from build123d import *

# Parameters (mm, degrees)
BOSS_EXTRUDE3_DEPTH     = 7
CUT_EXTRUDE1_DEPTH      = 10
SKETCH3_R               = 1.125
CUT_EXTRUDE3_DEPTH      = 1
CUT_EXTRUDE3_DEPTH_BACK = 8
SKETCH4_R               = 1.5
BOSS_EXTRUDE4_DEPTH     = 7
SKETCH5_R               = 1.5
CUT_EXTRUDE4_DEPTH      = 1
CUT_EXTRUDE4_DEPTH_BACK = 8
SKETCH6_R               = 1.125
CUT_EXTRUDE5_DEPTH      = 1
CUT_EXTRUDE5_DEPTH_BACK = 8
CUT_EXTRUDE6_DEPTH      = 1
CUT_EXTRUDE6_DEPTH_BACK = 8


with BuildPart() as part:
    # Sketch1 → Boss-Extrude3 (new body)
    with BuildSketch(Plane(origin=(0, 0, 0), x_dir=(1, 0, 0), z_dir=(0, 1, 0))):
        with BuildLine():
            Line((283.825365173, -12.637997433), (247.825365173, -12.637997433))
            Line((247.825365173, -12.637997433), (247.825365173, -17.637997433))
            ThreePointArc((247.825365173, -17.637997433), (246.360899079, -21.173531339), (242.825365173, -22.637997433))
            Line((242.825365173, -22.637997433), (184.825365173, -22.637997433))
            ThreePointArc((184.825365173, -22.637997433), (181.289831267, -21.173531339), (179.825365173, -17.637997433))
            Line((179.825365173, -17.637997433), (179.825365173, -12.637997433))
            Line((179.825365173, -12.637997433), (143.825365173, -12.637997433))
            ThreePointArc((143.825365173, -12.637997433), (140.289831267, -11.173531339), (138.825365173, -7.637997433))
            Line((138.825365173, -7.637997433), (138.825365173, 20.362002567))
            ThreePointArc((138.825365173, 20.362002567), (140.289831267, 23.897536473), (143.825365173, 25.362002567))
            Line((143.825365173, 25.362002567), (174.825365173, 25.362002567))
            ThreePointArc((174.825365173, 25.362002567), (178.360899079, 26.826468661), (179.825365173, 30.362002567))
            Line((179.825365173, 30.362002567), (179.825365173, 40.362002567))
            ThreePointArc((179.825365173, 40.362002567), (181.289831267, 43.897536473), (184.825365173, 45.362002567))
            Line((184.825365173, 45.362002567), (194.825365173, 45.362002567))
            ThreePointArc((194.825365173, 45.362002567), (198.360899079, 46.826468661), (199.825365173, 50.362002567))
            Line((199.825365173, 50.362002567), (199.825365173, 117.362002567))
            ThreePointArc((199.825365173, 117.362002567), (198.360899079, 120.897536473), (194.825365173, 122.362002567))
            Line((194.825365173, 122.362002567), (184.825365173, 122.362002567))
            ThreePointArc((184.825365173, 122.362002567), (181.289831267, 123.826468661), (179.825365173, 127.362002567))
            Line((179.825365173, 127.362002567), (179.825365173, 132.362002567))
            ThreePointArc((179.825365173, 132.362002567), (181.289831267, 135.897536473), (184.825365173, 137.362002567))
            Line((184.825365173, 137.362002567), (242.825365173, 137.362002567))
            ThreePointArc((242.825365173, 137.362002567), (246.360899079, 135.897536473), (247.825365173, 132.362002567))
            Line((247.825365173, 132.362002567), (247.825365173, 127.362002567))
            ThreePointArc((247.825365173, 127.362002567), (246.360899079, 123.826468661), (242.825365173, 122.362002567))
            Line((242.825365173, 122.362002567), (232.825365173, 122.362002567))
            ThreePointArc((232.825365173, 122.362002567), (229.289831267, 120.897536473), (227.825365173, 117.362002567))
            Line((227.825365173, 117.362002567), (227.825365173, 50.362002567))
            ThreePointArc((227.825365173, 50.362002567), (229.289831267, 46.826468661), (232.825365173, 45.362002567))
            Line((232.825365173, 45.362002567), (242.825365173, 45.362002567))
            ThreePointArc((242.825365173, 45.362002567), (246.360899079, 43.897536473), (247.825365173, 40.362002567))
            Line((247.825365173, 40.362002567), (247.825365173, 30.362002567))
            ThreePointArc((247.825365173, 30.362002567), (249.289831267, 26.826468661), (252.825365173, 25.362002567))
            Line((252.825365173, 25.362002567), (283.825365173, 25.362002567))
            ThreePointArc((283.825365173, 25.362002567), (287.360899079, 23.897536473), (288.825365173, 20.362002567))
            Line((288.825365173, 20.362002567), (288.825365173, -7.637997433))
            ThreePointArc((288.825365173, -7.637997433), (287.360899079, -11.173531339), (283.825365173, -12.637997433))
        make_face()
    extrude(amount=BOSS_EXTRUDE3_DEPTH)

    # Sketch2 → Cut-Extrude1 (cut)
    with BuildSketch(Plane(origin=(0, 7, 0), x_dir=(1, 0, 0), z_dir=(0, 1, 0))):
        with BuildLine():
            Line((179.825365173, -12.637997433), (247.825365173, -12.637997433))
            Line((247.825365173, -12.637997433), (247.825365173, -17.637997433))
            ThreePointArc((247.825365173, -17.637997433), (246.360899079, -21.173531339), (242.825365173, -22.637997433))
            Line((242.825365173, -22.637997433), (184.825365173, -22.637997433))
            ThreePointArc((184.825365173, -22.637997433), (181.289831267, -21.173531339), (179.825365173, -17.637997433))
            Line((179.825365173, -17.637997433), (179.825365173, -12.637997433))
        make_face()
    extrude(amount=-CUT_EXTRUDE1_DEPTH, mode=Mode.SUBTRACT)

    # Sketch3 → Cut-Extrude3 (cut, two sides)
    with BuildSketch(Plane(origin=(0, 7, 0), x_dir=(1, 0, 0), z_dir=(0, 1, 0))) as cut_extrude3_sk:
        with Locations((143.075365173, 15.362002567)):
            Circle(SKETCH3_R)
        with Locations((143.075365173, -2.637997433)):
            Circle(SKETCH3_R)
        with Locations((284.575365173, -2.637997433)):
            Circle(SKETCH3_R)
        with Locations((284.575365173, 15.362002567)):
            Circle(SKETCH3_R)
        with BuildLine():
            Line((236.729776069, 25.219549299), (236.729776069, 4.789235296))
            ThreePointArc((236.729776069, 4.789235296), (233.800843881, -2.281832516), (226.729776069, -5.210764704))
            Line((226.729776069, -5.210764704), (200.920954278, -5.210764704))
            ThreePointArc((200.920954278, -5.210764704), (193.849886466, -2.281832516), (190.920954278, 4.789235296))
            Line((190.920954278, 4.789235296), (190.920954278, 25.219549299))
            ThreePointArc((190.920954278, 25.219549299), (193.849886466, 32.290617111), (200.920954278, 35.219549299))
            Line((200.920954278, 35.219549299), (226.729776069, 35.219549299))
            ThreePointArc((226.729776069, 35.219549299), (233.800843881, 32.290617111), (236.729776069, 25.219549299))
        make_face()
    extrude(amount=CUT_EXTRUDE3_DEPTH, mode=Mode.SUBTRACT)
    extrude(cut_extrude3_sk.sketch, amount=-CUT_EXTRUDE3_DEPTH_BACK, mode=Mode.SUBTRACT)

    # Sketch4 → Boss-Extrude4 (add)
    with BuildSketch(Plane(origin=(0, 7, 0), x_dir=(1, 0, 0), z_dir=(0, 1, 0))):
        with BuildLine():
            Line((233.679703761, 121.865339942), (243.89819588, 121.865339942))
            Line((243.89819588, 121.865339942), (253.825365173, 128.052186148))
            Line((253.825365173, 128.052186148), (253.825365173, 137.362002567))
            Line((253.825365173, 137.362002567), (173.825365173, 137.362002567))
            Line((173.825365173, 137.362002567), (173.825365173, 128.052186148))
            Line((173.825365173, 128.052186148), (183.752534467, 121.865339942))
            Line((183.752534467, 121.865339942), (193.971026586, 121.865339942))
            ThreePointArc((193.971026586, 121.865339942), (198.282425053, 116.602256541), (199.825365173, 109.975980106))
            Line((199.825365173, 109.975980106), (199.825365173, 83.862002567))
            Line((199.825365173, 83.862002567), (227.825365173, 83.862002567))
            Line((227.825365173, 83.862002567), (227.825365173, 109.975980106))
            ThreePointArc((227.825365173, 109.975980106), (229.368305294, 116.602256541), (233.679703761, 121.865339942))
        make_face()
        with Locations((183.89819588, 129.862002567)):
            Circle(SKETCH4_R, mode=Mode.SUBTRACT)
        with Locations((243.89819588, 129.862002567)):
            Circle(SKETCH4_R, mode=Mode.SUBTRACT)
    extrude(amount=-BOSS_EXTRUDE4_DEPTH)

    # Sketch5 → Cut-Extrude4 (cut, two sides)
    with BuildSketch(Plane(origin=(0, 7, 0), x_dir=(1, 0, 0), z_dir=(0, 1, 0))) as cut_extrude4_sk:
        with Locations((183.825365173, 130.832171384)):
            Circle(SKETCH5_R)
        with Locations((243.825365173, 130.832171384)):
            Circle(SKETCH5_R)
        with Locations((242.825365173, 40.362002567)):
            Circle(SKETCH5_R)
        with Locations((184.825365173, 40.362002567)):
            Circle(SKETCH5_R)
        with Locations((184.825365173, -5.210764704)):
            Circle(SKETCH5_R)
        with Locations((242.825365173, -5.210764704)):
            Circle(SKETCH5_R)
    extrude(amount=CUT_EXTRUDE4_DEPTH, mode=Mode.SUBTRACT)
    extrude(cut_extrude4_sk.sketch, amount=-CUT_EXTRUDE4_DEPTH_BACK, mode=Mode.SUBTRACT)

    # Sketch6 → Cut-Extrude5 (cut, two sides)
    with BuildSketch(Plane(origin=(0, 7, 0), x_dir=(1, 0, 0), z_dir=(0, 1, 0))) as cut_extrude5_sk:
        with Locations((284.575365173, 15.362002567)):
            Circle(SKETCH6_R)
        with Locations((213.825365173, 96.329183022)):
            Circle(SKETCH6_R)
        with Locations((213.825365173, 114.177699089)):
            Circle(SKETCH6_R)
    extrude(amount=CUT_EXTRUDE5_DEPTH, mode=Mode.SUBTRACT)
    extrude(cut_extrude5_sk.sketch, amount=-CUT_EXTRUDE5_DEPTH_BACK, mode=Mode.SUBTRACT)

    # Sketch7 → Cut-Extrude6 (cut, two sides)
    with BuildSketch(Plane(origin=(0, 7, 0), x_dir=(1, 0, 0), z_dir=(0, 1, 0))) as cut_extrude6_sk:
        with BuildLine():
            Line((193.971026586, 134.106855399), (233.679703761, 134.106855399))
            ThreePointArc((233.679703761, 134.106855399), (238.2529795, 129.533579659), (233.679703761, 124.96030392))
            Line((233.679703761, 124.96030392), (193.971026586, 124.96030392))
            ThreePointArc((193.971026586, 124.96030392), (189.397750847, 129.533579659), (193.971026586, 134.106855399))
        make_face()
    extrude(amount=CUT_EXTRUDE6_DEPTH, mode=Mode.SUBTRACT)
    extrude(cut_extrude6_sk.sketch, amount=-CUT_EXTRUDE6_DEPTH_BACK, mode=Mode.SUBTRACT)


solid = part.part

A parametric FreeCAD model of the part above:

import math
import FreeCAD as App
import Part
import Sketcher
Q = App.Units.Quantity

doc = App.newDocument("Part")
body = doc.addObject("PartDesign::Body", "Body")

# Sketch on XZ plane
sketch1 = body.newObject("Sketcher::SketchObject", "Sketch")
sketch1.AttachmentSupport = (doc.getObject("XZ_Plane"), [""])
sketch1.MapMode = "FlatFace"
sketch1.addGeometry(Part.LineSegment(App.Vector(247.825365, 12.637997, 0), App.Vector(283.825365, 12.637997, 0)), False)
sketch1.addGeometry(Part.ArcOfCircle(Part.Circle(App.Vector(283.825365, 7.637997, 0), App.Vector(0, 0, 1), 5), math.radians(0), math.radians(90)), False)
sketch1.addGeometry(Part.LineSegment(App.Vector(288.825365, 7.637997, 0), App.Vector(288.825365, -20.362003, 0)), False)
sketch1.addGeometry(Part.ArcOfCircle(Part.Circle(App.Vector(283.825365, -20.362003, 0), App.Vector(0, 0, 1), 5), math.radians(-90), math.radians(0)), False)
sketch1.addGeometry(Part.LineSegment(App.Vector(283.825365, -25.362003, 0), App.Vector(252.825365, -25.362003, 0)), False)
sketch1.addGeometry(Part.ArcOfCircle(Part.Circle(App.Vector(252.825365, -30.362003, 0), App.Vector(0, 0, 1), 5), math.radians(90), math.radians(180)), False)
sketch1.addGeometry(Part.LineSegment(App.Vector(247.825365, -30.362003, 0), App.Vector(247.825365, -40.362003, 0)), False)
sketch1.addGeometry(Part.ArcOfCircle(Part.Circle(App.Vector(242.825365, -40.362003, 0), App.Vector(0, 0, 1), 5), math.radians(-90), math.radians(0)), False)
sketch1.addGeometry(Part.LineSegment(App.Vector(242.825365, -45.362003, 0), App.Vector(232.825365, -45.362003, 0)), False)
sketch1.addGeometry(Part.ArcOfCircle(Part.Circle(App.Vector(232.825365, -50.362003, 0), App.Vector(0, 0, 1), 5), math.radians(90), math.radians(180)), False)
sketch1.addGeometry(Part.LineSegment(App.Vector(227.825365, -50.362003, 0), App.Vector(227.825365, -117.362003, 0)), False)
sketch1.addGeometry(Part.ArcOfCircle(Part.Circle(App.Vector(232.825365, -117.362003, 0), App.Vector(0, 0, 1), 5), math.radians(180), math.radians(270)), False)
sketch1.addGeometry(Part.LineSegment(App.Vector(232.825365, -122.362003, 0), App.Vector(242.825365, -122.362003, 0)), False)
sketch1.addGeometry(Part.ArcOfCircle(Part.Circle(App.Vector(242.825365, -127.362003, 0), App.Vector(0, 0, 1), 5), math.radians(0), math.radians(90)), False)
sketch1.addGeometry(Part.LineSegment(App.Vector(247.825365, -127.362003, 0), App.Vector(247.825365, -132.362003, 0)), False)
sketch1.addGeometry(Part.ArcOfCircle(Part.Circle(App.Vector(242.825365, -132.362003, 0), App.Vector(0, 0, 1), 5), math.radians(-90), math.radians(0)), False)
sketch1.addGeometry(Part.LineSegment(App.Vector(242.825365, -137.362003, 0), App.Vector(184.825365, -137.362003, 0)), False)
sketch1.addGeometry(Part.ArcOfCircle(Part.Circle(App.Vector(184.825365, -132.362003, 0), App.Vector(0, 0, 1), 5), math.radians(180), math.radians(270)), False)
sketch1.addGeometry(Part.LineSegment(App.Vector(179.825365, -132.362003, 0), App.Vector(179.825365, -127.362003, 0)), False)
sketch1.addGeometry(Part.ArcOfCircle(Part.Circle(App.Vector(184.825365, -127.362003, 0), App.Vector(0, 0, 1), 5), math.radians(90), math.radians(180)), False)
sketch1.addGeometry(Part.LineSegment(App.Vector(184.825365, -122.362003, 0), App.Vector(194.825365, -122.362003, 0)), False)
sketch1.addGeometry(Part.ArcOfCircle(Part.Circle(App.Vector(194.825365, -117.362003, 0), App.Vector(0, 0, 1), 5), math.radians(-90), math.radians(0)), False)
sketch1.addGeometry(Part.LineSegment(App.Vector(199.825365, -117.362003, 0), App.Vector(199.825365, -50.362003, 0)), False)
sketch1.addGeometry(Part.ArcOfCircle(Part.Circle(App.Vector(194.825365, -50.362003, 0), App.Vector(0, 0, 1), 5), math.radians(0), math.radians(90)), False)
sketch1.addGeometry(Part.LineSegment(App.Vector(194.825365, -45.362003, 0), App.Vector(184.825365, -45.362003, 0)), False)
sketch1.addGeometry(Part.ArcOfCircle(Part.Circle(App.Vector(184.825365, -40.362003, 0), App.Vector(0, 0, 1), 5), math.radians(180), math.radians(270)), False)
sketch1.addGeometry(Part.LineSegment(App.Vector(179.825365, -40.362003, 0), App.Vector(179.825365, -30.362003, 0)), False)
sketch1.addGeometry(Part.ArcOfCircle(Part.Circle(App.Vector(174.825365, -30.362003, 0), App.Vector(0, 0, 1), 5), math.radians(0), math.radians(90)), False)
sketch1.addGeometry(Part.LineSegment(App.Vector(174.825365, -25.362003, 0), App.Vector(143.825365, -25.362003, 0)), False)
sketch1.addGeometry(Part.ArcOfCircle(Part.Circle(App.Vector(143.825365, -20.362003, 0), App.Vector(0, 0, 1), 5), math.radians(180), math.radians(270)), False)
sketch1.addGeometry(Part.LineSegment(App.Vector(138.825365, -20.362003, 0), App.Vector(138.825365, 7.637997, 0)), False)
sketch1.addGeometry(Part.ArcOfCircle(Part.Circle(App.Vector(143.825365, 7.637997, 0), App.Vector(0, 0, 1), 5), math.radians(90), math.radians(180)), False)
sketch1.addGeometry(Part.LineSegment(App.Vector(143.825365, 12.637997, 0), App.Vector(179.825365, 12.637997, 0)), False)
sketch1.addGeometry(Part.LineSegment(App.Vector(179.825365, 12.637997, 0), App.Vector(179.825365, 17.637997, 0)), False)
sketch1.addGeometry(Part.ArcOfCircle(Part.Circle(App.Vector(184.825365, 17.637997, 0), App.Vector(0, 0, 1), 5), math.radians(90), math.radians(180)), False)
sketch1.addGeometry(Part.LineSegment(App.Vector(184.825365, 22.637997, 0), App.Vector(242.825365, 22.637997, 0)), False)
sketch1.addGeometry(Part.ArcOfCircle(Part.Circle(App.Vector(242.825365, 17.637997, 0), App.Vector(0, 0, 1), 5), math.radians(0), math.radians(90)), False)
sketch1.addGeometry(Part.LineSegment(App.Vector(247.825365, 17.637997, 0), App.Vector(247.825365, 12.637997, 0)), False)
sketch1.addConstraint(Sketcher.Constraint("Tangent", 0, 2, 1, 2))
sketch1.addConstraint(Sketcher.Constraint("Tangent", 1, 1, 2, 1))
sketch1.addConstraint(Sketcher.Constraint("Tangent", 2, 2, 3, 2))
sketch1.addConstraint(Sketcher.Constraint("Tangent", 3, 1, 4, 1))
sketch1.addConstraint(Sketcher.Constraint("Tangent", 4, 2, 5, 1))
sketch1.addConstraint(Sketcher.Constraint("Tangent", 5, 2, 6, 1))
sketch1.addConstraint(Sketcher.Constraint("Tangent", 6, 2, 7, 2))
sketch1.addConstraint(Sketcher.Constraint("Tangent", 7, 1, 8, 1))
sketch1.addConstraint(Sketcher.Constraint("Tangent", 8, 2, 9, 1))
sketch1.addConstraint(Sketcher.Constraint("Tangent", 9, 2, 10, 1))
sketch1.addConstraint(Sketcher.Constraint("Tangent", 10, 2, 11, 1))
sketch1.addConstraint(Sketcher.Constraint("Tangent", 11, 2, 12, 1))
sketch1.addConstraint(Sketcher.Constraint("Tangent", 12, 2, 13, 2))
sketch1.addConstraint(Sketcher.Constraint("Tangent", 13, 1, 14, 1))
sketch1.addConstraint(Sketcher.Constraint("Tangent", 14, 2, 15, 2))
sketch1.addConstraint(Sketcher.Constraint("Tangent", 15, 1, 16, 1))
sketch1.addConstraint(Sketcher.Constraint("Tangent", 16, 2, 17, 2))
sketch1.addConstraint(Sketcher.Constraint("Tangent", 17, 1, 18, 1))
sketch1.addConstraint(Sketcher.Constraint("Tangent", 18, 2, 19, 2))
sketch1.addConstraint(Sketcher.Constraint("Tangent", 19, 1, 20, 1))
sketch1.addConstraint(Sketcher.Constraint("Tangent", 20, 2, 21, 1))
sketch1.addConstraint(Sketcher.Constraint("Tangent", 21, 2, 22, 1))
sketch1.addConstraint(Sketcher.Constraint("Tangent", 22, 2, 23, 1))
sketch1.addConstraint(Sketcher.Constraint("Tangent", 23, 2, 24, 1))
sketch1.addConstraint(Sketcher.Constraint("Tangent", 24, 2, 25, 2))
sketch1.addConstraint(Sketcher.Constraint("Tangent", 25, 1, 26, 1))
sketch1.addConstraint(Sketcher.Constraint("Tangent", 26, 2, 27, 1))
sketch1.addConstraint(Sketcher.Constraint("Tangent", 27, 2, 28, 1))
sketch1.addConstraint(Sketcher.Constraint("Tangent", 28, 2, 29, 2))
sketch1.addConstraint(Sketcher.Constraint("Tangent", 29, 1, 30, 1))
sketch1.addConstraint(Sketcher.Constraint("Tangent", 30, 2, 31, 2))
sketch1.addConstraint(Sketcher.Constraint("Tangent", 31, 1, 32, 1))
sketch1.addConstraint(Sketcher.Constraint("Coincident", 32, 2, 33, 1))
sketch1.addConstraint(Sketcher.Constraint("Tangent", 33, 2, 34, 2))
sketch1.addConstraint(Sketcher.Constraint("Tangent", 34, 1, 35, 1))
sketch1.addConstraint(Sketcher.Constraint("Tangent", 35, 2, 36, 2))
sketch1.addConstraint(Sketcher.Constraint("Tangent", 36, 1, 37, 1))
sketch1.addConstraint(Sketcher.Constraint("Coincident", 37, 2, 0, 1))
sketch1.addConstraint(Sketcher.Constraint("Horizontal", 0))
sketch1.addConstraint(Sketcher.Constraint("Vertical", 2))
sketch1.addConstraint(Sketcher.Constraint("Horizontal", 4))
sketch1.addConstraint(Sketcher.Constraint("Vertical", 6))
sketch1.addConstraint(Sketcher.Constraint("Horizontal", 8))
sketch1.addConstraint(Sketcher.Constraint("Vertical", 10))
sketch1.addConstraint(Sketcher.Constraint("Horizontal", 12))
sketch1.addConstraint(Sketcher.Constraint("Vertical", 14))
sketch1.addConstraint(Sketcher.Constraint("Horizontal", 16))
sketch1.addConstraint(Sketcher.Constraint("Vertical", 18))
sketch1.addConstraint(Sketcher.Constraint("Horizontal", 20))
sketch1.addConstraint(Sketcher.Constraint("Vertical", 22))
sketch1.addConstraint(Sketcher.Constraint("Horizontal", 24))
sketch1.addConstraint(Sketcher.Constraint("Vertical", 26))
sketch1.addConstraint(Sketcher.Constraint("Horizontal", 28))
sketch1.addConstraint(Sketcher.Constraint("Vertical", 30))
sketch1.addConstraint(Sketcher.Constraint("Horizontal", 32))
sketch1.addConstraint(Sketcher.Constraint("Vertical", 33))
sketch1.addConstraint(Sketcher.Constraint("Horizontal", 35))
sketch1.addConstraint(Sketcher.Constraint("Vertical", 37))
sketch1.addConstraint(Sketcher.Constraint("Equal", 1, 3))
sketch1.addConstraint(Sketcher.Constraint("Equal", 3, 5))
sketch1.addConstraint(Sketcher.Constraint("Equal", 5, 7))
sketch1.addConstraint(Sketcher.Constraint("Equal", 7, 9))
sketch1.addConstraint(Sketcher.Constraint("Equal", 9, 11))
sketch1.addConstraint(Sketcher.Constraint("Equal", 11, 13))
sketch1.addConstraint(Sketcher.Constraint("Equal", 13, 15))
sketch1.addConstraint(Sketcher.Constraint("Equal", 15, 17))
sketch1.addConstraint(Sketcher.Constraint("Equal", 17, 19))
sketch1.addConstraint(Sketcher.Constraint("Equal", 19, 21))
sketch1.addConstraint(Sketcher.Constraint("Equal", 21, 23))
sketch1.addConstraint(Sketcher.Constraint("Equal", 23, 25))
sketch1.addConstraint(Sketcher.Constraint("Equal", 25, 27))
sketch1.addConstraint(Sketcher.Constraint("Equal", 27, 29))
sketch1.addConstraint(Sketcher.Constraint("Equal", 29, 31))
sketch1.addConstraint(Sketcher.Constraint("Equal", 31, 34))
sketch1.addConstraint(Sketcher.Constraint("Equal", 34, 36))
sketch1.addConstraint(Sketcher.Constraint("Horizontal", 13, 3, 19, 3))
sketch1.addConstraint(Sketcher.Constraint("Horizontal", 9, 3, 23, 3))
sketch1.addConstraint(Sketcher.Constraint("Horizontal", 5, 3, 27, 3))
sketch1.addConstraint(Sketcher.Constraint("Horizontal", 1, 3, 31, 3))
sketch1.addConstraint(Sketcher.Constraint("Vertical", 7, 3, 13, 3))
sketch1.addConstraint(Sketcher.Constraint("Vertical", 19, 3, 25, 3))
sketch1.addConstraint(Sketcher.Constraint("Vertical", 25, 3, 34, 3))
sketch1.addConstraint(Sketcher.Constraint("Vertical", 15, 3, 36, 3))
sketch1.addConstraint(Sketcher.Constraint("Equal", 12, 20))
sketch1.addConstraint(Sketcher.Constraint("Equal", 4, 28))
sketch1.addConstraint(Sketcher.Constraint("Equal", 24, 6))
sketch1.addConstraint(Sketcher.Constraint("Equal", 18, 33))
sketch1.addConstraint(Sketcher.Constraint("Radius", 1, Q("5 mm")))
sketch1.addConstraint(Sketcher.Constraint("DistanceX", 0, 1, 0, 2, Q("36 mm")))
sketch1.addConstraint(Sketcher.Constraint("DistanceX", 8, 2, 8, 1, Q("10 mm")))
sketch1.addConstraint(Sketcher.Constraint("DistanceX", 16, 2, 16, 1, Q("58 mm")))
sketch1.addConstraint(Sketcher.Constraint("DistanceY", 2, 2, 2, 1, Q("28 mm")))
sketch1.addConstraint(Sketcher.Constraint("DistanceY", 10, 2, 10, 1, Q("67 mm")))
sketch1.addConstraint(Sketcher.Constraint("DistanceY", 14, 2, 14, 1, Q("5 mm")))
sketch1.addConstraint(Sketcher.Constraint("DistanceX", -1, 1, 1, 3, Q("283.825365 mm")))
sketch1.addConstraint(Sketcher.Constraint("DistanceY", -1, 1, 1, 3, Q("7.637997 mm")))
pad1 = body.newObject("PartDesign::Pad", "Pad")
pad1.Profile = sketch1
pad1.Length = 7
pad1.Reversed = True

# Sketch on XZ plane
sketch2 = body.newObject("Sketcher::SketchObject", "Sketch001")
sketch2.AttachmentSupport = (doc.getObject("XZ_Plane"), [""])
sketch2.MapMode = "FlatFace"
sketch2.AttachmentOffset = App.Placement(App.Vector(0, 0, -7), App.Rotation())
sketch2.addGeometry(Part.LineSegment(App.Vector(247.825365, 12.637997, 0), App.Vector(179.825365, 12.637997, 0)), False)
sketch2.addGeometry(Part.LineSegment(App.Vector(179.825365, 12.637997, 0), App.Vector(179.825365, 17.637997, 0)), False)
sketch2.addGeometry(Part.ArcOfCircle(Part.Circle(App.Vector(184.825365, 17.637997, 0), App.Vector(0, 0, 1), 5), math.radians(90), math.radians(180)), False)
sketch2.addGeometry(Part.LineSegment(App.Vector(184.825365, 22.637997, 0), App.Vector(242.825365, 22.637997, 0)), False)
sketch2.addGeometry(Part.ArcOfCircle(Part.Circle(App.Vector(242.825365, 17.637997, 0), App.Vector(0, 0, 1), 5), math.radians(0), math.radians(90)), False)
sketch2.addGeometry(Part.LineSegment(App.Vector(247.825365, 17.637997, 0), App.Vector(247.825365, 12.637997, 0)), False)
sketch2.addConstraint(Sketcher.Constraint("Coincident", 0, 2, 1, 1))
sketch2.addConstraint(Sketcher.Constraint("Tangent", 1, 2, 2, 2))
sketch2.addConstraint(Sketcher.Constraint("Tangent", 2, 1, 3, 1))
sketch2.addConstraint(Sketcher.Constraint("Tangent", 3, 2, 4, 2))
sketch2.addConstraint(Sketcher.Constraint("Tangent", 4, 1, 5, 1))
sketch2.addConstraint(Sketcher.Constraint("Coincident", 5, 2, 0, 1))
sketch2.addConstraint(Sketcher.Constraint("Horizontal", 0))
sketch2.addConstraint(Sketcher.Constraint("Vertical", 1))
sketch2.addConstraint(Sketcher.Constraint("Horizontal", 3))
sketch2.addConstraint(Sketcher.Constraint("Vertical", 5))
sketch2.addConstraint(Sketcher.Constraint("Equal", 2, 4))
sketch2.addConstraint(Sketcher.Constraint("Radius", 2, Q("5 mm")))
sketch2.addConstraint(Sketcher.Constraint("DistanceX", 0, 2, 0, 1, Q("68 mm")))
sketch2.addConstraint(Sketcher.Constraint("DistanceY", 1, 1, 1, 2, Q("5 mm")))
sketch2.addConstraint(Sketcher.Constraint("DistanceX", -1, 1, 2, 3, Q("184.825365 mm")))
sketch2.addConstraint(Sketcher.Constraint("DistanceY", -1, 1, 2, 3, Q("17.637997 mm")))
pocket1 = body.newObject("PartDesign::Pocket", "Pocket")
pocket1.Profile = sketch2
pocket1.Length = 10
pocket1.Reversed = True

# Sketch on XZ plane
sketch3 = body.newObject("Sketcher::SketchObject", "Sketch002")
sketch3.AttachmentSupport = (doc.getObject("XZ_Plane"), [""])
sketch3.MapMode = "FlatFace"
sketch3.AttachmentOffset = App.Placement(App.Vector(0, 0, -7), App.Rotation())
sketch3.addGeometry(Part.Circle(App.Vector(143.075365, -15.362003, 0), App.Vector(0, 0, 1), 1.125), False)
sketch3.addGeometry(Part.Circle(App.Vector(143.075365, 2.637997, 0), App.Vector(0, 0, 1), 1.125), False)
sketch3.addGeometry(Part.Circle(App.Vector(284.575365, 2.637997, 0), App.Vector(0, 0, 1), 1.125), False)
sketch3.addGeometry(Part.Circle(App.Vector(284.575365, -15.362003, 0), App.Vector(0, 0, 1), 1.125), False)
sketch3.addGeometry(Part.LineSegment(App.Vector(236.729776, -4.789235, 0), App.Vector(236.729776, -25.219549, 0)), False)
sketch3.addGeometry(Part.ArcOfCircle(Part.Circle(App.Vector(226.729776, -25.219549, 0), App.Vector(0, 0, 1), 10), math.radians(-90), math.radians(0)), False)
sketch3.addGeometry(Part.LineSegment(App.Vector(226.729776, -35.219549, 0), App.Vector(200.920954, -35.219549, 0)), False)
sketch3.addGeometry(Part.ArcOfCircle(Part.Circle(App.Vector(200.920954, -25.219549, 0), App.Vector(0, 0, 1), 10), math.radians(180), math.radians(270)), False)
sketch3.addGeometry(Part.LineSegment(App.Vector(190.920954, -25.219549, 0), App.Vector(190.920954, -4.789235, 0)), False)
sketch3.addGeometry(Part.ArcOfCircle(Part.Circle(App.Vector(200.920954, -4.789235, 0), App.Vector(0, 0, 1), 10), math.radians(90), math.radians(180)), False)
sketch3.addGeometry(Part.LineSegment(App.Vector(200.920954, 5.210765, 0), App.Vector(226.729776, 5.210765, 0)), False)
sketch3.addGeometry(Part.ArcOfCircle(Part.Circle(App.Vector(226.729776, -4.789235, 0), App.Vector(0, 0, 1), 10), math.radians(0), math.radians(90)), False)
sketch3.addConstraint(Sketcher.Constraint("Tangent", 4, 2, 5, 2))
sketch3.addConstraint(Sketcher.Constraint("Tangent", 5, 1, 6, 1))
sketch3.addConstraint(Sketcher.Constraint("Tangent", 6, 2, 7, 2))
sketch3.addConstraint(Sketcher.Constraint("Tangent", 7, 1, 8, 1))
sketch3.addConstraint(Sketcher.Constraint("Tangent", 8, 2, 9, 2))
sketch3.addConstraint(Sketcher.Constraint("Tangent", 9, 1, 10, 1))
sketch3.addConstraint(Sketcher.Constraint("Tangent", 10, 2, 11, 2))
sketch3.addConstraint(Sketcher.Constraint("Tangent", 11, 1, 4, 1))
sketch3.addConstraint(Sketcher.Constraint("Vertical", 4))
sketch3.addConstraint(Sketcher.Constraint("Horizontal", 6))
sketch3.addConstraint(Sketcher.Constraint("Vertical", 8))
sketch3.addConstraint(Sketcher.Constraint("Horizontal", 10))
sketch3.addConstraint(Sketcher.Constraint("Equal", 0, 1))
sketch3.addConstraint(Sketcher.Constraint("Equal", 1, 2))
sketch3.addConstraint(Sketcher.Constraint("Equal", 2, 3))
sketch3.addConstraint(Sketcher.Constraint("Equal", 5, 7))
sketch3.addConstraint(Sketcher.Constraint("Equal", 7, 9))
sketch3.addConstraint(Sketcher.Constraint("Equal", 9, 11))
sketch3.addConstraint(Sketcher.Constraint("Horizontal", 1, 3, 2, 3))
sketch3.addConstraint(Sketcher.Constraint("Horizontal", 0, 3, 3, 3))
sketch3.addConstraint(Sketcher.Constraint("Vertical", 0, 3, 1, 3))
sketch3.addConstraint(Sketcher.Constraint("Vertical", 2, 3, 3, 3))
sketch3.addConstraint(Sketcher.Constraint("Radius", 5, Q("10 mm")))
sketch3.addConstraint(Sketcher.Constraint("Diameter", 0, Q("2.25 mm")))
sketch3.addConstraint(Sketcher.Constraint("DistanceY", 0, 3, 1, 3, Q("18 mm")))
sketch3.addConstraint(Sketcher.Constraint("DistanceX", 1, 3, 2, 3, Q("141.5 mm")))
sketch3.addConstraint(Sketcher.Constraint("DistanceX", 6, 2, 6, 1, Q("25.808822 mm")))
sketch3.addConstraint(Sketcher.Constraint("DistanceY", 4, 2, 4, 1, Q("20.430314 mm")))
sketch3.addConstraint(Sketcher.Constraint("DistanceY", 5, 3, -1, 1, Q("25.219549 mm")))
sketch3.addConstraint(Sketcher.Constraint("DistanceX", 5, 3, 3, 3, Q("57.845589 mm")))
sketch3.addConstraint(Sketcher.Constraint("DistanceX", -1, 1, 0, 3, Q("143.075365 mm")))
sketch3.addConstraint(Sketcher.Constraint("DistanceY", 0, 3, -1, 1, Q("15.362003 mm")))
pocket2 = body.newObject("PartDesign::Pocket", "Pocket001")
pocket2.Profile = sketch3
pocket2.Type = "ThroughAll"
pocket2.Midplane = True

# Sketch on XZ plane
sketch4 = body.newObject("Sketcher::SketchObject", "Sketch003")
sketch4.AttachmentSupport = (doc.getObject("XZ_Plane"), [""])
sketch4.MapMode = "FlatFace"
sketch4.AttachmentOffset = App.Placement(App.Vector(0, 0, -7), App.Rotation())
sketch4.addGeometry(Part.LineSegment(App.Vector(233.679704, -121.86534, 0), App.Vector(243.898196, -121.86534, 0)), False)
sketch4.addGeometry(Part.LineSegment(App.Vector(243.898196, -121.86534, 0), App.Vector(253.825365, -128.052186, 0)), False)
sketch4.addGeometry(Part.LineSegment(App.Vector(253.825365, -128.052186, 0), App.Vector(253.825365, -137.362003, 0)), False)
sketch4.addGeometry(Part.LineSegment(App.Vector(253.825365, -137.362003, 0), App.Vector(173.825365, -137.362003, 0)), False)
sketch4.addGeometry(Part.LineSegment(App.Vector(173.825365, -137.362003, 0), App.Vector(173.825365, -128.052186, 0)), False)
sketch4.addGeometry(Part.LineSegment(App.Vector(173.825365, -128.052186, 0), App.Vector(183.752534, -121.86534, 0)), False)
sketch4.addGeometry(Part.LineSegment(App.Vector(183.752534, -121.86534, 0), App.Vector(193.971027, -121.86534, 0)), False)
sketch4.addGeometry(Part.ArcOfCircle(Part.Circle(App.Vector(184.825365, -109.97598, 0), App.Vector(0, 0, 1), 15), math.radians(-52.431408), math.radians(0)), False)
sketch4.addGeometry(Part.LineSegment(App.Vector(199.825365, -109.97598, 0), App.Vector(199.825365, -83.862003, 0)), False)
sketch4.addGeometry(Part.LineSegment(App.Vector(199.825365, -83.862003, 0), App.Vector(227.825365, -83.862003, 0)), False)
sketch4.addGeometry(Part.LineSegment(App.Vector(227.825365, -83.862003, 0), App.Vector(227.825365, -109.97598, 0)), False)
sketch4.addGeometry(Part.ArcOfCircle(Part.Circle(App.Vector(242.825365, -109.97598, 0), App.Vector(0, 0, 1), 15), math.radians(-180), math.radians(-127.568592)), False)
sketch4.addGeometry(Part.Circle(App.Vector(183.898196, -129.862003, 0), App.Vector(0, 0, 1), 1.5), False)
sketch4.addGeometry(Part.Circle(App.Vector(243.898196, -129.862003, 0), App.Vector(0, 0, 1), 1.5), False)
sketch4.addConstraint(Sketcher.Constraint("Coincident", 0, 2, 1, 1))
sketch4.addConstraint(Sketcher.Constraint("Coincident", 1, 2, 2, 1))
sketch4.addConstraint(Sketcher.Constraint("Coincident", 2, 2, 3, 1))
sketch4.addConstraint(Sketcher.Constraint("Coincident", 3, 2, 4, 1))
sketch4.addConstraint(Sketcher.Constraint("Coincident", 4, 2, 5, 1))
sketch4.addConstraint(Sketcher.Constraint("Coincident", 5, 2, 6, 1))
sketch4.addConstraint(Sketcher.Constraint("Coincident", 6, 2, 7, 1))
sketch4.addConstraint(Sketcher.Constraint("Tangent", 7, 2, 8, 1))
sketch4.addConstraint(Sketcher.Constraint("Coincident", 8, 2, 9, 1))
sketch4.addConstraint(Sketcher.Constraint("Coincident", 9, 2, 10, 1))
sketch4.addConstraint(Sketcher.Constraint("Tangent", 10, 2, 11, 1))
sketch4.addConstraint(Sketcher.Constraint("Coincident", 11, 2, 0, 1))
sketch4.addConstraint(Sketcher.Constraint("Horizontal", 0))
sketch4.addConstraint(Sketcher.Constraint("Vertical", 2))
sketch4.addConstraint(Sketcher.Constraint("Horizontal", 3))
sketch4.addConstraint(Sketcher.Constraint("Vertical", 4))
sketch4.addConstraint(Sketcher.Constraint("Horizontal", 6))
sketch4.addConstraint(Sketcher.Constraint("Vertical", 8))
sketch4.addConstraint(Sketcher.Constraint("Horizontal", 9))
sketch4.addConstraint(Sketcher.Constraint("Vertical", 10))
sketch4.addConstraint(Sketcher.Constraint("Equal", 7, 11))
sketch4.addConstraint(Sketcher.Constraint("Equal", 12, 13))
sketch4.addConstraint(Sketcher.Constraint("Horizontal", 7, 3, 11, 3))
sketch4.addConstraint(Sketcher.Constraint("Horizontal", 12, 3, 13, 3))
sketch4.addConstraint(Sketcher.Constraint("Horizontal", 1, 2, 4, 2))
sketch4.addConstraint(Sketcher.Constraint("Horizontal", 0, 2, 5, 2))
sketch4.addConstraint(Sketcher.Constraint("Vertical", 13, 3, 0, 2))
sketch4.addConstraint(Sketcher.Constraint("Equal", 0, 6))
sketch4.addConstraint(Sketcher.Constraint("Equal", 1, 5))
sketch4.addConstraint(Sketcher.Constraint("Diameter", 12, Q("3 mm")))
sketch4.addConstraint(Sketcher.Constraint("Radius", 7, Q("15 mm")))
sketch4.addConstraint(Sketcher.Constraint("DistanceX", 3, 2, 3, 1, Q("80 mm")))
sketch4.addConstraint(Sketcher.Constraint("DistanceX", 9, 1, 9, 2, Q("28 mm")))
sketch4.addConstraint(Sketcher.Constraint("DistanceX", 12, 3, 13, 3, Q("60 mm")))
sketch4.addConstraint(Sketcher.Constraint("DistanceY", 12, 3, 8, 2, Q("46 mm")))
sketch4.addConstraint(Sketcher.Constraint("DistanceY", 2, 2, 13, 3, Q("7.5 mm")))
sketch4.addConstraint(Sketcher.Constraint("DistanceX", 0, 1, 0, 2, Q("10.218492 mm")))
sketch4.addConstraint(Sketcher.Constraint("DistanceY", 2, 2, 2, 1, Q("9.309816 mm")))
sketch4.addConstraint(Sketcher.Constraint("DistanceY", 8, 1, 8, 2, Q("26.113978 mm")))
sketch4.addConstraint(Sketcher.Constraint("DistanceY", 7, 3, -1, 1, Q("109.97598 mm")))
sketch4.addConstraint(Sketcher.Constraint("DistanceY", 0, 2, -1, 1, Q("121.86534 mm")))
sketch4.addConstraint(Sketcher.Constraint("DistanceX", -1, 1, 7, 3, Q("184.825365 mm")))
pad2 = body.newObject("PartDesign::Pad", "Pad001")
pad2.Profile = sketch4
pad2.Length = 7

# Sketch on XZ plane
sketch5 = body.newObject("Sketcher::SketchObject", "Sketch004")
sketch5.AttachmentSupport = (doc.getObject("XZ_Plane"), [""])
sketch5.MapMode = "FlatFace"
sketch5.AttachmentOffset = App.Placement(App.Vector(0, 0, -7), App.Rotation())
sketch5.addGeometry(Part.Circle(App.Vector(183.825365, -130.832171, 0), App.Vector(0, 0, 1), 1.5), False)
sketch5.addGeometry(Part.Circle(App.Vector(243.825365, -130.832171, 0), App.Vector(0, 0, 1), 1.5), False)
sketch5.addGeometry(Part.Circle(App.Vector(242.825365, -40.362003, 0), App.Vector(0, 0, 1), 1.5), False)
sketch5.addGeometry(Part.Circle(App.Vector(184.825365, -40.362003, 0), App.Vector(0, 0, 1), 1.5), False)
sketch5.addGeometry(Part.Circle(App.Vector(184.825365, 5.210765, 0), App.Vector(0, 0, 1), 1.5), False)
sketch5.addGeometry(Part.Circle(App.Vector(242.825365, 5.210765, 0), App.Vector(0, 0, 1), 1.5), False)
sketch5.addConstraint(Sketcher.Constraint("Equal", 0, 1))
sketch5.addConstraint(Sketcher.Constraint("Equal", 1, 2))
sketch5.addConstraint(Sketcher.Constraint("Equal", 2, 3))
sketch5.addConstraint(Sketcher.Constraint("Equal", 3, 4))
sketch5.addConstraint(Sketcher.Constraint("Equal", 4, 5))
sketch5.addConstraint(Sketcher.Constraint("Horizontal", 0, 3, 1, 3))
sketch5.addConstraint(Sketcher.Constraint("Horizontal", 2, 3, 3, 3))
sketch5.addConstraint(Sketcher.Constraint("Horizontal", 4, 3, 5, 3))
sketch5.addConstraint(Sketcher.Constraint("Vertical", 3, 3, 4, 3))
sketch5.addConstraint(Sketcher.Constraint("Vertical", 2, 3, 5, 3))
sketch5.addConstraint(Sketcher.Constraint("Diameter", 0, Q("3 mm")))
sketch5.addConstraint(Sketcher.Constraint("DistanceX", 0, 3, 1, 3, Q("60 mm")))
sketch5.addConstraint(Sketcher.Constraint("DistanceX", 2, 3, 1, 3, Q("1 mm")))
sketch5.addConstraint(Sketcher.Constraint("DistanceX", 3, 3, 2, 3, Q("58 mm")))
sketch5.addConstraint(Sketcher.Constraint("DistanceY", 0, 3, -1, 1, Q("130.832171 mm")))
sketch5.addConstraint(Sketcher.Constraint("DistanceY", 1, 3, 2, 3, Q("90.470169 mm")))
sketch5.addConstraint(Sketcher.Constraint("DistanceX", -1, 1, 0, 3, Q("183.825365 mm")))
sketch5.addConstraint(Sketcher.Constraint("DistanceY", -1, 1, 4, 3, Q("5.210765 mm")))
pocket3 = body.newObject("PartDesign::Pocket", "Pocket002")
pocket3.Profile = sketch5
pocket3.Type = "ThroughAll"
pocket3.Midplane = True

# Sketch on XZ plane
sketch6 = body.newObject("Sketcher::SketchObject", "Sketch005")
sketch6.AttachmentSupport = (doc.getObject("XZ_Plane"), [""])
sketch6.MapMode = "FlatFace"
sketch6.AttachmentOffset = App.Placement(App.Vector(0, 0, -7), App.Rotation())
sketch6.addGeometry(Part.Circle(App.Vector(284.575365, -15.362003, 0), App.Vector(0, 0, 1), 1.125), False)
sketch6.addGeometry(Part.Circle(App.Vector(213.825365, -96.329183, 0), App.Vector(0, 0, 1), 1.125), False)
sketch6.addGeometry(Part.Circle(App.Vector(213.825365, -114.177699, 0), App.Vector(0, 0, 1), 1.125), False)
sketch6.addConstraint(Sketcher.Constraint("Equal", 0, 1))
sketch6.addConstraint(Sketcher.Constraint("Equal", 1, 2))
sketch6.addConstraint(Sketcher.Constraint("Vertical", 1, 3, 2, 3))
sketch6.addConstraint(Sketcher.Constraint("Diameter", 0, Q("2.25 mm")))
sketch6.addConstraint(Sketcher.Constraint("DistanceX", 1, 3, 0, 3, Q("70.75 mm")))
sketch6.addConstraint(Sketcher.Constraint("DistanceY", 2, 3, -1, 1, Q("114.177699 mm")))
sketch6.addConstraint(Sketcher.Constraint("DistanceY", 1, 3, 0, 3, Q("80.96718 mm")))
sketch6.addConstraint(Sketcher.Constraint("DistanceX", -1, 1, 0, 3, Q("284.575365 mm")))
sketch6.addConstraint(Sketcher.Constraint("DistanceY", 0, 3, -1, 1, Q("15.362003 mm")))
pocket4 = body.newObject("PartDesign::Pocket", "Pocket003")
pocket4.Profile = sketch6
pocket4.Type = "ThroughAll"
pocket4.Midplane = True

# Sketch on XZ plane
sketch7 = body.newObject("Sketcher::SketchObject", "Sketch006")
sketch7.AttachmentSupport = (doc.getObject("XZ_Plane"), [""])
sketch7.MapMode = "FlatFace"
sketch7.AttachmentOffset = App.Placement(App.Vector(0, 0, -7), App.Rotation())
sketch7.addGeometry(Part.LineSegment(App.Vector(233.679704, -134.106855, 0), App.Vector(193.971027, -134.106855, 0)), False)
sketch7.addGeometry(Part.ArcOfCircle(Part.Circle(App.Vector(193.971027, -129.53358, 0), App.Vector(0, 0, 1), 4.573276), math.radians(90), math.radians(270)), False)
sketch7.addGeometry(Part.LineSegment(App.Vector(193.971027, -124.960304, 0), App.Vector(233.679704, -124.960304, 0)), False)
sketch7.addGeometry(Part.ArcOfCircle(Part.Circle(App.Vector(233.679704, -129.53358, 0), App.Vector(0, 0, 1), 4.573276), math.radians(-90), math.radians(90)), False)
sketch7.addConstraint(Sketcher.Constraint("Tangent", 0, 2, 1, 2))
sketch7.addConstraint(Sketcher.Constraint("Tangent", 1, 1, 2, 1))
sketch7.addConstraint(Sketcher.Constraint("Tangent", 2, 2, 3, 2))
sketch7.addConstraint(Sketcher.Constraint("Tangent", 3, 1, 0, 1))
sketch7.addConstraint(Sketcher.Constraint("Horizontal", 0))
sketch7.addConstraint(Sketcher.Constraint("Horizontal", 2))
sketch7.addConstraint(Sketcher.Constraint("Radius", 1, Q("4.573276 mm")))
sketch7.addConstraint(Sketcher.Constraint("DistanceX", 0, 2, 0, 1, Q("39.708677 mm")))
sketch7.addConstraint(Sketcher.Constraint("DistanceY", 1, 3, -1, 1, Q("129.53358 mm")))
sketch7.addConstraint(Sketcher.Constraint("DistanceX", -1, 1, 1, 3, Q("193.971027 mm")))
pocket5 = body.newObject("PartDesign::Pocket", "Pocket004")
pocket5.Profile = sketch7
pocket5.Type = "ThroughAll"
pocket5.Midplane = True

doc.recompute()
